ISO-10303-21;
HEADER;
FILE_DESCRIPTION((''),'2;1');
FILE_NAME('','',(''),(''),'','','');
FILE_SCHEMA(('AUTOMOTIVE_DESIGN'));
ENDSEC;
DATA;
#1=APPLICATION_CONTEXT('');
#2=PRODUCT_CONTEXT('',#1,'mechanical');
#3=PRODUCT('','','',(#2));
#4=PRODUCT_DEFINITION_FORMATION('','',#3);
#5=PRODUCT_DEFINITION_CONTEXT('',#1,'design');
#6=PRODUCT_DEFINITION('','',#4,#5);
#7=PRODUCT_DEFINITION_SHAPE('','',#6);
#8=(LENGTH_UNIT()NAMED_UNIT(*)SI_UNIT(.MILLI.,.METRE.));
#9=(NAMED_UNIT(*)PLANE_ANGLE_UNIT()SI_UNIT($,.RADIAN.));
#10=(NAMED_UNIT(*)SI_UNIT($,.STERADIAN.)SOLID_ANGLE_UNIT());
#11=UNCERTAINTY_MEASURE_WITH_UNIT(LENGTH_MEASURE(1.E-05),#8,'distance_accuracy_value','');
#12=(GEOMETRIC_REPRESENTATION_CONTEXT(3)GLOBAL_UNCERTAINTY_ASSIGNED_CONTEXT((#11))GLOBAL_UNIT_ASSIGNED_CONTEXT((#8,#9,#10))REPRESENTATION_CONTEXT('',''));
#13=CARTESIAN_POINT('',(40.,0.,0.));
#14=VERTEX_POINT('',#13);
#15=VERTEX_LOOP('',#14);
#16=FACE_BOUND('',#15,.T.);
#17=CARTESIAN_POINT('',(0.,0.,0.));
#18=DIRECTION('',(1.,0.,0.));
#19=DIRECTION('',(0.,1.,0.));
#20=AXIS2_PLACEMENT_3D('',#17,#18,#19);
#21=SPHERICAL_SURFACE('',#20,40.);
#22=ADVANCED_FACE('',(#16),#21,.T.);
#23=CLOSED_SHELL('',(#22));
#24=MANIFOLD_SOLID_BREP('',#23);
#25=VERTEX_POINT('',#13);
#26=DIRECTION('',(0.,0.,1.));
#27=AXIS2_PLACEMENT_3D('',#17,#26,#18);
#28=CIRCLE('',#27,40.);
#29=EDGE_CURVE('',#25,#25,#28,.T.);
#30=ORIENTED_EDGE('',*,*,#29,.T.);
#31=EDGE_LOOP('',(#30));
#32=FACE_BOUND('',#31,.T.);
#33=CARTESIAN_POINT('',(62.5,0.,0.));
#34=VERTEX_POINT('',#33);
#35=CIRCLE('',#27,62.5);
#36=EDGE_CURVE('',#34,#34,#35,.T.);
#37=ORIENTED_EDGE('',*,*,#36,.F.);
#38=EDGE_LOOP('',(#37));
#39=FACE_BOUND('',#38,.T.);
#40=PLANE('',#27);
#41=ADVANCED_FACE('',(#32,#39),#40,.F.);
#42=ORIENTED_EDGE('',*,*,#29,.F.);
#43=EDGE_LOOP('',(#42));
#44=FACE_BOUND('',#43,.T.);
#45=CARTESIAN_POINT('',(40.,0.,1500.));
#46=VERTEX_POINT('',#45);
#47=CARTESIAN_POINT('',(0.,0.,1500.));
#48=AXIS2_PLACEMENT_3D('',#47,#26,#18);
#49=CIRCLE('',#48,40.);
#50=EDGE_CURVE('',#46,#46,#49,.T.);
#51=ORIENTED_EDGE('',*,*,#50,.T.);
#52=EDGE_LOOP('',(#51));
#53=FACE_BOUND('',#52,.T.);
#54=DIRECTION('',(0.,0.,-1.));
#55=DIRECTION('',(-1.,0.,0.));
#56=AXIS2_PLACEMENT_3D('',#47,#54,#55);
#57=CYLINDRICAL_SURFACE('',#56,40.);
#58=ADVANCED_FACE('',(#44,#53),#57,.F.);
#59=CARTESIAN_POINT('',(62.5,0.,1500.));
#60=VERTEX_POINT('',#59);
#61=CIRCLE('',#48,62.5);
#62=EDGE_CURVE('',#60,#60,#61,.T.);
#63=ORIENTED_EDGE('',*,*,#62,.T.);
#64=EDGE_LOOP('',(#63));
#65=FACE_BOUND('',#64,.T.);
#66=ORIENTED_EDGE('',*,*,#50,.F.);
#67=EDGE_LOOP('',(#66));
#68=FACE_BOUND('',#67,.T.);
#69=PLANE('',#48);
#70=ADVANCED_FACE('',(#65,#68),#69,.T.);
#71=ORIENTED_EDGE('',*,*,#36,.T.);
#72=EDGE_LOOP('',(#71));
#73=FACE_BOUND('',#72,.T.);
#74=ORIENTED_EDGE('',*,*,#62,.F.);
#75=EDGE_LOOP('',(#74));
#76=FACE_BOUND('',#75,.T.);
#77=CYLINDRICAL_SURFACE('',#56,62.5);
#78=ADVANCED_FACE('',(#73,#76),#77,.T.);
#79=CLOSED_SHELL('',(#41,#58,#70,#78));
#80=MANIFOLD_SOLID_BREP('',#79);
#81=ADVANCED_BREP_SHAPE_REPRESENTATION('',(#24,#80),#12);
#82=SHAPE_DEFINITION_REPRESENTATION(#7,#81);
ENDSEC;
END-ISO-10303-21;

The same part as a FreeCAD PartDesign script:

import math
import FreeCAD as App
import Part
import Sketcher

doc = App.newDocument("Part")
body = doc.addObject("PartDesign::Body", "Body")

# Sketch on XY plane
sketch1 = body.newObject("Sketcher::SketchObject", "Sketch")
sketch1.AttachmentSupport = (doc.getObject("XY_Plane"), [""])
sketch1.MapMode = "FlatFace"
sketch1.addGeometry(Part.Circle(App.Vector(0, 0, 0), App.Vector(0, 0, 1), 62), False)
sketch1.addGeometry(Part.Circle(App.Vector(0, 0, 0), App.Vector(0, 0, 1), 40), False)
sketch1.addConstraint(Sketcher.Constraint("Coincident", 0, 3, -1, 1))
sketch1.addConstraint(Sketcher.Constraint("Coincident", 1, 3, -1, 1))
sketch1.addConstraint(Sketcher.Constraint("Diameter", 0, 125.0))
sketch1.addConstraint(Sketcher.Constraint("Diameter", 1, 80.0))
pad1 = body.newObject("PartDesign::Pad", "Pad")
pad1.Profile = sketch1
pad1.Length = 1500
body2 = doc.addObject("PartDesign::Body", "Body001")

# Sketch on XY plane
sketch2 = body2.newObject("Sketcher::SketchObject", "Sketch001")
sketch2.AttachmentSupport = (doc.getObject("XY_Plane001"), [""])
sketch2.MapMode = "FlatFace"
sketch2.addGeometry(Part.LineSegment(App.Vector(40, 0, 0), App.Vector(-40, 0, 0)), False)
sketch2.addGeometry(Part.ArcOfCircle(Part.Circle(App.Vector(0, 0, 0), App.Vector(0, 0, 1), 40), math.radians(0), math.radians(180)), False)
sketch2.addConstraint(Sketcher.Constraint("Coincident", 0, 1, 1, 1))
sketch2.addConstraint(Sketcher.Constraint("Coincident", 1, 2, 0, 2))
sketch2.addConstraint(Sketcher.Constraint("Horizontal", 0))
sketch2.addConstraint(Sketcher.Constraint("Coincident", 1, 3, -1, 1))
sketch2.addConstraint(Sketcher.Constraint("PointOnObject", 0, 1, -1))
sketch2.addConstraint(Sketcher.Constraint("Radius", 1, 40.0))
revolution = body2.newObject("PartDesign::Revolution", "Revolution")
revolution.Profile = sketch2
revolution.ReferenceAxis = (sketch2, ["H_Axis"])
revolution.Angle = 360

doc.recompute()
